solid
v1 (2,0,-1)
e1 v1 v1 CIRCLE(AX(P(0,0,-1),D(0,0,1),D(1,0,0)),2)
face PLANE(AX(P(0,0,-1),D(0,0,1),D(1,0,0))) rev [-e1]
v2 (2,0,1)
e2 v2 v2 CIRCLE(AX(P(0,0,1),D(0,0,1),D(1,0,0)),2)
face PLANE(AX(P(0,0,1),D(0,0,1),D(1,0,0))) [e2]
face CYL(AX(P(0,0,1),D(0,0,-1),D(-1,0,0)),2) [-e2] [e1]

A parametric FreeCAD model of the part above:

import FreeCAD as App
import Part
import Sketcher

V = App.Vector

doc = App.newDocument("Part")
body = doc.addObject("PartDesign::Body", "Body")

sketch1 = body.newObject("Sketcher::SketchObject", "Sketch")
sketch1.AttachmentSupport = (doc.getObject("XY_Plane"), [""])
sketch1.MapMode = "FlatFace"
sketch1.addGeometry(Part.Circle(V(0, 0, 0), V(0, 0, 1), 2), False)
sketch1.addConstraint(Sketcher.Constraint("Coincident", 0, 3, -1, 1))
sketch1.addConstraint(Sketcher.Constraint("Diameter", 0, 4.0))
pad1 = body.newObject("PartDesign::Pad", "Pad")
pad1.Profile = sketch1
pad1.Length = 2
pad1.Midplane = True

doc.recompute()
